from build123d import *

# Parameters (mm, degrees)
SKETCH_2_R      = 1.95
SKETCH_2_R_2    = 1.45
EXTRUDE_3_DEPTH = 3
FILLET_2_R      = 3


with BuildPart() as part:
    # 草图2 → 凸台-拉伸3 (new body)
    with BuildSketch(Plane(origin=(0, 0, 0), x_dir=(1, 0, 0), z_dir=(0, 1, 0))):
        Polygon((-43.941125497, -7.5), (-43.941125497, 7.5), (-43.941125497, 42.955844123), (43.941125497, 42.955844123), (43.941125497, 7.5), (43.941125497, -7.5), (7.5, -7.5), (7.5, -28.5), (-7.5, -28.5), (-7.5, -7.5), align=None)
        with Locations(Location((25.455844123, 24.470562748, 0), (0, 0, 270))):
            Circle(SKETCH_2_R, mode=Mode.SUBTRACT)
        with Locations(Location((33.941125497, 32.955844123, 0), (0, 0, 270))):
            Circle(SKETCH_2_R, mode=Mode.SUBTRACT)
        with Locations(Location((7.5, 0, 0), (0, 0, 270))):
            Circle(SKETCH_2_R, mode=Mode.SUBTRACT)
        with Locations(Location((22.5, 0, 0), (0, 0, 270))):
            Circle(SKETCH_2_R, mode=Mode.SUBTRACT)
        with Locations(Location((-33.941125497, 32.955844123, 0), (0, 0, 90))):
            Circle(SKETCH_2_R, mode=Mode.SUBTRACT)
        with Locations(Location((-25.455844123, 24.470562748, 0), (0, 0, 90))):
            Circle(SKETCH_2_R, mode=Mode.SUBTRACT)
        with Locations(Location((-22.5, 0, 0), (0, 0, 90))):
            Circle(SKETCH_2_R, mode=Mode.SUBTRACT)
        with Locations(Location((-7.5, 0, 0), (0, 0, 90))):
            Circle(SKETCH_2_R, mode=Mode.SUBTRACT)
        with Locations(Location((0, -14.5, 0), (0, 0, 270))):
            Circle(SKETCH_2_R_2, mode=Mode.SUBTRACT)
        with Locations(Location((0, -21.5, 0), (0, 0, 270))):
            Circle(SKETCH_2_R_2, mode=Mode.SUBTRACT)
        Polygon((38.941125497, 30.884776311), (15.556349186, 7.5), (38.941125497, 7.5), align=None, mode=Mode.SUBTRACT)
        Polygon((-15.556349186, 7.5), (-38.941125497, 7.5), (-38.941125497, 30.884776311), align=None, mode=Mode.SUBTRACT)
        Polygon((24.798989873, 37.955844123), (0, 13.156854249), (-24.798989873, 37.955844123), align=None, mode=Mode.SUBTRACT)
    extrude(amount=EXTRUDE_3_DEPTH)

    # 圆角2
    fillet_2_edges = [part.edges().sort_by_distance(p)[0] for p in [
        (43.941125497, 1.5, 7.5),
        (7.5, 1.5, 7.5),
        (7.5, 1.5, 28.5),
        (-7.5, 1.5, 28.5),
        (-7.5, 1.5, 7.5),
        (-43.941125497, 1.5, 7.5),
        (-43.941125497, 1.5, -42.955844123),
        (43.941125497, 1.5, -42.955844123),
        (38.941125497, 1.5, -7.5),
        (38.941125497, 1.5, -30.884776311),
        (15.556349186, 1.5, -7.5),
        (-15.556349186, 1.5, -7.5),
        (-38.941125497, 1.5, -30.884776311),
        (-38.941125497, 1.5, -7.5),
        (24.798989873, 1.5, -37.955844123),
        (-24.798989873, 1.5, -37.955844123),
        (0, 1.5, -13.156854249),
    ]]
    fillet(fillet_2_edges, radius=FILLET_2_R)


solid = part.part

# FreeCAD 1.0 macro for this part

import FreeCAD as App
import Part
import Sketcher
from FreeCAD import Vector
Q = App.Units.Quantity


def edges_at(feature, points):
    """Names of the edges that pass closest to the given points."""
    edges = feature.Shape.Edges
    near = lambda p: min(range(len(edges)), key=lambda i: edges[i].distToShape(Part.Vertex(*p))[0])
    return sorted({f"Edge{near(p) + 1}" for p in points})

doc = App.newDocument("Part")
body = doc.addObject("PartDesign::Body", "Body")

# Sketch on XZ plane
sketch1 = body.newObject("Sketcher::SketchObject", "Sketch")
sketch1.AttachmentSupport = (doc.getObject("XZ_Plane"), [""])
sketch1.MapMode = "FlatFace"
sketch1.addGeometry([
    Part.LineSegment(Vector(-43.9, -43, 0), Vector(-43.9, 7.5, 0)),  # 0
    Part.LineSegment(Vector(-43.9, 7.5, 0), Vector(-7.5, 7.5, 0)),  # 1
    Part.LineSegment(Vector(-7.5, 7.5, 0), Vector(-7.5, 28.5, 0)),  # 2
    Part.LineSegment(Vector(-7.5, 28.5, 0), Vector(7.5, 28.5, 0)),  # 3
    Part.LineSegment(Vector(7.5, 28.5, 0), Vector(7.5, 7.5, 0)),  # 4
    Part.LineSegment(Vector(7.5, 7.5, 0), Vector(43.9, 7.5, 0)),  # 5
    Part.LineSegment(Vector(43.9, 7.5, 0), Vector(43.9, -43, 0)),  # 6
    Part.LineSegment(Vector(43.9, -43, 0), Vector(-43.9, -43, 0)),  # 7
    Part.Circle(Vector(0, 21.5, 0), Vector(0, 0, 1), 1.4),  # 8
    Part.Circle(Vector(0, 14.5, 0), Vector(0, 0, 1), 1.4),  # 9
    Part.Circle(Vector(22.5, 0, 0), Vector(0, 0, 1), 1.9),  # 10
    Part.Circle(Vector(7.5, 0, 0), Vector(0, 0, 1), 1.9),  # 11
    Part.Circle(Vector(-7.5, 0, 0), Vector(0, 0, 1), 1.9),  # 12
    Part.Circle(Vector(-22.5, 0, 0), Vector(0, 0, 1), 1.9),  # 13
    Part.LineSegment(Vector(38.9, -30.9, 0), Vector(38.9, -7.5, 0)),  # 14
    Part.LineSegment(Vector(38.9, -7.5, 0), Vector(15.6, -7.5, 0)),  # 15
    Part.LineSegment(Vector(15.6, -7.5, 0), Vector(38.9, -30.9, 0)),  # 16
    Part.Circle(Vector(25.5, -24.5, 0), Vector(0, 0, 1), 1.9),  # 17
    Part.Circle(Vector(33.9, -33, 0), Vector(0, 0, 1), 1.9),  # 18
    Part.LineSegment(Vector(24.8, -38, 0), Vector(0, -13.2, 0)),  # 19
    Part.LineSegment(Vector(0, -13.2, 0), Vector(-24.8, -38, 0)),  # 20
    Part.LineSegment(Vector(-24.8, -38, 0), Vector(24.8, -38, 0)),  # 21
    Part.LineSegment(Vector(-15.6, -7.5, 0), Vector(-38.9, -7.5, 0)),  # 22
    Part.LineSegment(Vector(-38.9, -7.5, 0), Vector(-38.9, -30.9, 0)),  # 23
    Part.LineSegment(Vector(-38.9, -30.9, 0), Vector(-15.6, -7.5, 0)),  # 24
    Part.Circle(Vector(-25.5, -24.5, 0), Vector(0, 0, 1), 1.9),  # 25
    Part.Circle(Vector(-33.9, -33, 0), Vector(0, 0, 1), 1.9),  # 26
], False)
sketch1.addConstraint([
    Sketcher.Constraint("Coincident", 0, 2, 1, 1),
    Sketcher.Constraint("Coincident", 1, 2, 2, 1),
    Sketcher.Constraint("Coincident", 2, 2, 3, 1),
    Sketcher.Constraint("Coincident", 3, 2, 4, 1),
    Sketcher.Constraint("Coincident", 4, 2, 5, 1),
    Sketcher.Constraint("Coincident", 5, 2, 6, 1),
    Sketcher.Constraint("Coincident", 6, 2, 7, 1),
    Sketcher.Constraint("Coincident", 7, 2, 0, 1),
    Sketcher.Constraint("Coincident", 14, 2, 15, 1),
    Sketcher.Constraint("Coincident", 15, 2, 16, 1),
    Sketcher.Constraint("Coincident", 16, 2, 14, 1),
    Sketcher.Constraint("Coincident", 19, 2, 20, 1),
    Sketcher.Constraint("Coincident", 20, 2, 21, 1),
    Sketcher.Constraint("Coincident", 21, 2, 19, 1),
    Sketcher.Constraint("Coincident", 22, 2, 23, 1),
    Sketcher.Constraint("Coincident", 23, 2, 24, 1),
    Sketcher.Constraint("Coincident", 24, 2, 22, 1),
    Sketcher.Constraint("Vertical", 0),
    Sketcher.Constraint("Horizontal", 1),
    Sketcher.Constraint("Vertical", 2),
    Sketcher.Constraint("Horizontal", 3),
    Sketcher.Constraint("Vertical", 4),
    Sketcher.Constraint("Horizontal", 5),
    Sketcher.Constraint("Vertical", 6),
    Sketcher.Constraint("Horizontal", 7),
    Sketcher.Constraint("Vertical", 14),
    Sketcher.Constraint("Horizontal", 15),
    Sketcher.Constraint("Horizontal", 21),
    Sketcher.Constraint("Horizontal", 22),
    Sketcher.Constraint("Vertical", 23),
    Sketcher.Constraint("Equal", 8, 9),
    Sketcher.Constraint("Equal", 10, 11),
    Sketcher.Constraint("Equal", 11, 12),
    Sketcher.Constraint("Equal", 12, 13),
    Sketcher.Constraint("Equal", 13, 17),
    Sketcher.Constraint("Equal", 17, 18),
    Sketcher.Constraint("Equal", 18, 25),
    Sketcher.Constraint("Equal", 25, 26),
    Sketcher.Constraint("Symmetric", 11, 3, 12, 3, -1, 1),
    Sketcher.Constraint("Symmetric", 10, 3, 13, 3, -1, 1),
    Sketcher.Constraint("Symmetric", 17, 3, 25, 3, -2),
    Sketcher.Constraint("Symmetric", 18, 3, 26, 3, -2),
    Sketcher.Constraint("Symmetric", 1, 2, 4, 2, -2),
    Sketcher.Constraint("Symmetric", 14, 2, 22, 2, -2),
    Sketcher.Constraint("PointOnObject", 8, 3, -2),
    Sketcher.Constraint("PointOnObject", 9, 3, -2),
    Sketcher.Constraint("PointOnObject", 10, 3, -1),
    Sketcher.Constraint("PointOnObject", 11, 3, -1),
    Sketcher.Constraint("PointOnObject", 19, 2, -2),
    Sketcher.Constraint("Parallel", 16, 19),
    Sketcher.Constraint("Perpendicular", 19, 20),
    Sketcher.Constraint("Parallel", 20, 24),
    Sketcher.Constraint("Horizontal", 16, 2, 23, 2),
    Sketcher.Constraint("Vertical", 12, 3, 1, 2),
    Sketcher.Constraint("Equal", 1, 5),
    Sketcher.Constraint("Equal", 15, 22),
    Sketcher.Constraint("Diameter", 8, Q("2.9 mm")),
    Sketcher.Constraint("Diameter", 10, Q("3.9 mm")),
    Sketcher.Constraint("DistanceX", 3, 1, 3, 2, Q("15 mm")),
    Sketcher.Constraint("DistanceY", 2, 1, 2, 2, Q("21 mm")),
    Sketcher.Constraint("DistanceY", 9, 3, 8, 3, Q("7 mm")),
    Sketcher.Constraint("DistanceX", 11, 3, 10, 3, Q("15 mm")),
    Sketcher.Constraint("DistanceX", 0, 2, 26, 3, Q("10 mm")),
    Sketcher.Constraint("DistanceY", 0, 2, 9, 3, Q("7 mm")),
    Sketcher.Constraint("DistanceY", 6, 2, 18, 3, Q("10 mm")),
    Sketcher.Constraint("DistanceX", 14, 2, 5, 2, Q("5 mm")),
    Sketcher.Constraint("DistanceY", 14, 2, 5, 2, Q("15 mm")),
    Sketcher.Constraint("DistanceY", 20, 2, 26, 3, Q("5 mm")),
    Sketcher.Constraint("DistanceY", -1, 1, 8, 3, Q("21.5 mm")),
    Sketcher.Constraint("DistanceX", 7, 2, 7, 1, Q("87.882251 mm")),
    Sketcher.Constraint("DistanceX", 21, 1, 21, 2, Q("49.59798 mm")),
    Sketcher.Constraint("DistanceX", 15, 2, 15, 1, Q("23.384776 mm")),
    Sketcher.Constraint("DistanceY", 0, 1, 0, 2, Q("50.455844 mm")),
    Sketcher.Constraint("DistanceX", 17, 3, 18, 3, Q("8.485281 mm")),
    Sketcher.Constraint("DistanceY", 18, 3, 17, 3, Q("8.485281 mm")),
])
pad1 = body.newObject("PartDesign::Pad", "Pad")
pad1.Profile = sketch1
pad1.Length = 3
pad1.Reversed = True
doc.recompute()

fillet = body.newObject("PartDesign::Fillet", "Fillet")
fillet.Base = (pad1, edges_at(pad1, [
    (43.941, 1.5, 7.5),
    (7.5, 1.5, 7.5),
    (7.5, 1.5, 28.5),
    (-7.5, 1.5, 28.5),
    (-7.5, 1.5, 7.5),
    (-43.941, 1.5, 7.5),
    (-43.941, 1.5, -42.956),
    (43.941, 1.5, -42.956),
    (38.941, 1.5, -7.5),
    (38.941, 1.5, -30.885),
    (15.556, 1.5, -7.5),
    (-15.556, 1.5, -7.5),
    (-38.941, 1.5, -30.885),
    (-38.941, 1.5, -7.5),
    (24.799, 1.5, -37.956),
    (-24.799, 1.5, -37.956),
    (0, 1.5, -13.157),
]))
fillet.Radius = 3

doc.recompute()
